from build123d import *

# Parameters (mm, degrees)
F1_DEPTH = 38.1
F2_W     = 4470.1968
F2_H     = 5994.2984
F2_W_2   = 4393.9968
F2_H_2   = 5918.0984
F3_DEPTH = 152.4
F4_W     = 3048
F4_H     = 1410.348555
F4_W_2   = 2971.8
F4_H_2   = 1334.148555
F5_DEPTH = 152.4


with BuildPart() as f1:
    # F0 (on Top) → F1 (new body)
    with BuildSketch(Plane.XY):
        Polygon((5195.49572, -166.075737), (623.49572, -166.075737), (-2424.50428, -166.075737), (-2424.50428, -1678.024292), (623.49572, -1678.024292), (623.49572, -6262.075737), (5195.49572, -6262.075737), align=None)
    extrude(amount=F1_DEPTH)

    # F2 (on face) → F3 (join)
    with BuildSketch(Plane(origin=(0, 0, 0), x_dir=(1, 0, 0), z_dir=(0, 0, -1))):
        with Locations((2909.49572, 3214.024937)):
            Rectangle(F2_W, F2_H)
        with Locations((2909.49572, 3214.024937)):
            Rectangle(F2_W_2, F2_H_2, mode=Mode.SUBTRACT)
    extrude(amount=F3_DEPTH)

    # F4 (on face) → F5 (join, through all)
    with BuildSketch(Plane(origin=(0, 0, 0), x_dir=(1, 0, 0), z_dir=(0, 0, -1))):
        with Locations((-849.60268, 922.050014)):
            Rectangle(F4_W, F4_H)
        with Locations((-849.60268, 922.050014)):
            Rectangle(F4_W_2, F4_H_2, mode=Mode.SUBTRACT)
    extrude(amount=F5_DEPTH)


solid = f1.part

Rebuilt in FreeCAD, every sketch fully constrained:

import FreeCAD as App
import Part
import Sketcher
from FreeCAD import Vector
Q = App.Units.Quantity

doc = App.newDocument("Part")
params = doc.addObject("Spreadsheet::Sheet", "Params")
for row, (alias, value) in enumerate([
    ("sketch1_width", "300 in"),
    ("sketch1_width2", "120 in"),
    ("sketch1_height", "240 in"),
    ("pad1_length", "1.5 in"),
    ("sketch2_width", "175.992 in"),
    ("sketch2_height", "235.996 in"),
    ("pad2_length", "6 in"),
    ("sketch3_width", "120 in"),
    ("sketch3_width2", "117 in"),
    ("pad3_length", "6 in"),
], start=1):
    params.set(f"A{row}", alias)
    params.set(f"B{row}", "=" + value)
    params.setAlias(f"B{row}", alias)

body = doc.addObject("PartDesign::Body", "Body")

# Sketch on XY plane
sketch1 = doc.addObject("Sketcher::SketchObject", "Sketch")
body.addObject(sketch1)
sketch1.AttachmentSupport = (doc.XY_Plane, [""])
sketch1.MapMode = "FlatFace"
sketch1.addGeometry([
    Part.LineSegment(Vector(5195, -166, 0), Vector(-2425, -166, 0)),  # 0
    Part.LineSegment(Vector(-2425, -166, 0), Vector(-2425, -1678, 0)),  # 1
    Part.LineSegment(Vector(-2425, -1678, 0), Vector(623, -1678, 0)),  # 2
    Part.LineSegment(Vector(623, -1678, 0), Vector(623, -6262, 0)),  # 3
    Part.LineSegment(Vector(623, -6262, 0), Vector(5195, -6262, 0)),  # 4
    Part.LineSegment(Vector(5195, -6262, 0), Vector(5195, -166, 0)),  # 5
], False)
sketch1.addConstraint([
    Sketcher.Constraint("Coincident", 0, 2, 1, 1),
    Sketcher.Constraint("Coincident", 1, 2, 2, 1),
    Sketcher.Constraint("Coincident", 2, 2, 3, 1),
    Sketcher.Constraint("Coincident", 3, 2, 4, 1),
    Sketcher.Constraint("Coincident", 4, 2, 5, 1),
    Sketcher.Constraint("Coincident", 5, 2, 0, 1),
    Sketcher.Constraint("Horizontal", 0),
    Sketcher.Constraint("Vertical", 1),
    Sketcher.Constraint("Horizontal", 2),
    Sketcher.Constraint("Vertical", 3),
    Sketcher.Constraint("Horizontal", 4),
    Sketcher.Constraint("Vertical", 5),
    Sketcher.Constraint("DistanceX", 0, 2, 0, 1, Q("300 in")),
    Sketcher.Constraint("DistanceX", 2, 1, 2, 2, Q("120 in")),
    Sketcher.Constraint("DistanceY", 5, 1, 5, 2, Q("240 in")),
    Sketcher.Constraint("DistanceY", 1, 2, 1, 1, 1511.948555),
    Sketcher.Constraint("DistanceX", 0, 2, -1, 1, 2424.50428),
    Sketcher.Constraint("DistanceY", 1, 2, -1, 1, 1678.024292),
])
sketch1.setExpression("Constraints[12]", "Params.sketch1_width")
sketch1.setExpression("Constraints[13]", "Params.sketch1_width2")
sketch1.setExpression("Constraints[14]", "Params.sketch1_height")
pad1 = doc.addObject("PartDesign::Pad", "Pad")
body.addObject(pad1)
pad1.Profile = sketch1
pad1.setExpression("Length", "Params.pad1_length")

# Sketch on XY plane
sketch2 = doc.addObject("Sketcher::SketchObject", "Sketch001")
body.addObject(sketch2)
sketch2.AttachmentSupport = (doc.XY_Plane, [""])
sketch2.MapMode = "FlatFace"
sketch2.addGeometry([
    Part.LineSegment(Vector(674, -6211, 0), Vector(674, -217, 0)),  # 0
    Part.LineSegment(Vector(674, -217, 0), Vector(5145, -217, 0)),  # 1
    Part.LineSegment(Vector(5145, -217, 0), Vector(5145, -6211, 0)),  # 2
    Part.LineSegment(Vector(5145, -6211, 0), Vector(674, -6211, 0)),  # 3
    Part.LineSegment(Vector(5106, -255, 0), Vector(712, -255, 0)),  # 4
    Part.LineSegment(Vector(712, -255, 0), Vector(712, -6173, 0)),  # 5
    Part.LineSegment(Vector(712, -6173, 0), Vector(5106, -6173, 0)),  # 6
    Part.LineSegment(Vector(5106, -6173, 0), Vector(5106, -255, 0)),  # 7
], False)
sketch2.addConstraint([
    Sketcher.Constraint("Coincident", 0, 2, 1, 1),
    Sketcher.Constraint("Coincident", 1, 2, 2, 1),
    Sketcher.Constraint("Coincident", 2, 2, 3, 1),
    Sketcher.Constraint("Coincident", 3, 2, 0, 1),
    Sketcher.Constraint("Coincident", 4, 2, 5, 1),
    Sketcher.Constraint("Coincident", 5, 2, 6, 1),
    Sketcher.Constraint("Coincident", 6, 2, 7, 1),
    Sketcher.Constraint("Coincident", 7, 2, 4, 1),
    Sketcher.Constraint("Vertical", 0),
    Sketcher.Constraint("Horizontal", 1),
    Sketcher.Constraint("Vertical", 2),
    Sketcher.Constraint("Horizontal", 3),
    Sketcher.Constraint("Horizontal", 4),
    Sketcher.Constraint("Vertical", 5),
    Sketcher.Constraint("Horizontal", 6),
    Sketcher.Constraint("Vertical", 7),
    Sketcher.Constraint("DistanceX", 0, 2, 4, 2, Q("1.5 in")),
    Sketcher.Constraint("DistanceY", 4, 2, 0, 2, Q("1.5 in")),
    Sketcher.Constraint("DistanceY", 3, 2, 5, 2, Q("1.5 in")),
    Sketcher.Constraint("DistanceX", 6, 2, 2, 2, Q("1.5 in")),
    Sketcher.Constraint("DistanceX", 1, 1, 1, 2, Q("175.992 in")),
    Sketcher.Constraint("DistanceY", 0, 1, 0, 2, Q("235.996 in")),
    Sketcher.Constraint("DistanceX", -1, 1, 0, 2, 674.39732),
    Sketcher.Constraint("DistanceY", 0, 2, -1, 1, 216.875737),
])
sketch2.setExpression("Constraints[20]", "Params.sketch2_width")
sketch2.setExpression("Constraints[21]", "Params.sketch2_height")
pad2 = doc.addObject("PartDesign::Pad", "Pad001")
body.addObject(pad2)
pad2.Profile = sketch2
pad2.setExpression("Length", "Params.pad2_length")
pad2.Reversed = True

# Sketch on XY plane
sketch3 = doc.addObject("Sketcher::SketchObject", "Sketch002")
body.addObject(sketch3)
sketch3.AttachmentSupport = (doc.XY_Plane, [""])
sketch3.MapMode = "FlatFace"
sketch3.addGeometry([
    Part.LineSegment(Vector(-2374, -1627, 0), Vector(-2374, -217, 0)),  # 0
    Part.LineSegment(Vector(-2374, -217, 0), Vector(674, -217, 0)),  # 1
    Part.LineSegment(Vector(674, -217, 0), Vector(674, -1627, 0)),  # 2
    Part.LineSegment(Vector(674, -1627, 0), Vector(-2374, -1627, 0)),  # 3
    Part.LineSegment(Vector(636, -255, 0), Vector(-2336, -255, 0)),  # 4
    Part.LineSegment(Vector(-2336, -255, 0), Vector(-2336, -1589, 0)),  # 5
    Part.LineSegment(Vector(-2336, -1589, 0), Vector(636, -1589, 0)),  # 6
    Part.LineSegment(Vector(636, -1589, 0), Vector(636, -255, 0)),  # 7
], False)
sketch3.addConstraint([
    Sketcher.Constraint("Coincident", 0, 2, 1, 1),
    Sketcher.Constraint("Coincident", 1, 2, 2, 1),
    Sketcher.Constraint("Coincident", 2, 2, 3, 1),
    Sketcher.Constraint("Coincident", 3, 2, 0, 1),
    Sketcher.Constraint("Coincident", 4, 2, 5, 1),
    Sketcher.Constraint("Coincident", 5, 2, 6, 1),
    Sketcher.Constraint("Coincident", 6, 2, 7, 1),
    Sketcher.Constraint("Coincident", 7, 2, 4, 1),
    Sketcher.Constraint("Vertical", 0),
    Sketcher.Constraint("Horizontal", 1),
    Sketcher.Constraint("Vertical", 2),
    Sketcher.Constraint("Horizontal", 3),
    Sketcher.Constraint("Horizontal", 4),
    Sketcher.Constraint("Vertical", 5),
    Sketcher.Constraint("Horizontal", 6),
    Sketcher.Constraint("Vertical", 7),
    Sketcher.Constraint("DistanceX", 1, 1, 1, 2, Q("120 in")),
    Sketcher.Constraint("DistanceX", 4, 2, 4, 1, Q("117 in")),
    Sketcher.Constraint("DistanceX", 0, 2, 4, 2, Q("1.5 in")),
    Sketcher.Constraint("DistanceY", 4, 2, 0, 2, Q("1.5 in")),
    Sketcher.Constraint("DistanceY", 3, 2, 5, 2, Q("1.5 in")),
    Sketcher.Constraint("DistanceY", 0, 1, 0, 2, 1410.348555),
    Sketcher.Constraint("DistanceX", 0, 2, -1, 1, 2373.60268),
    Sketcher.Constraint("DistanceY", 2, 2, -1, 1, 1627.224291),
])
sketch3.setExpression("Constraints[16]", "Params.sketch3_width")
sketch3.setExpression("Constraints[17]", "Params.sketch3_width2")
pad3 = doc.addObject("PartDesign::Pad", "Pad002")
body.addObject(pad3)
pad3.Profile = sketch3
pad3.setExpression("Length", "Params.pad3_length")
pad3.Reversed = True

doc.recompute()
